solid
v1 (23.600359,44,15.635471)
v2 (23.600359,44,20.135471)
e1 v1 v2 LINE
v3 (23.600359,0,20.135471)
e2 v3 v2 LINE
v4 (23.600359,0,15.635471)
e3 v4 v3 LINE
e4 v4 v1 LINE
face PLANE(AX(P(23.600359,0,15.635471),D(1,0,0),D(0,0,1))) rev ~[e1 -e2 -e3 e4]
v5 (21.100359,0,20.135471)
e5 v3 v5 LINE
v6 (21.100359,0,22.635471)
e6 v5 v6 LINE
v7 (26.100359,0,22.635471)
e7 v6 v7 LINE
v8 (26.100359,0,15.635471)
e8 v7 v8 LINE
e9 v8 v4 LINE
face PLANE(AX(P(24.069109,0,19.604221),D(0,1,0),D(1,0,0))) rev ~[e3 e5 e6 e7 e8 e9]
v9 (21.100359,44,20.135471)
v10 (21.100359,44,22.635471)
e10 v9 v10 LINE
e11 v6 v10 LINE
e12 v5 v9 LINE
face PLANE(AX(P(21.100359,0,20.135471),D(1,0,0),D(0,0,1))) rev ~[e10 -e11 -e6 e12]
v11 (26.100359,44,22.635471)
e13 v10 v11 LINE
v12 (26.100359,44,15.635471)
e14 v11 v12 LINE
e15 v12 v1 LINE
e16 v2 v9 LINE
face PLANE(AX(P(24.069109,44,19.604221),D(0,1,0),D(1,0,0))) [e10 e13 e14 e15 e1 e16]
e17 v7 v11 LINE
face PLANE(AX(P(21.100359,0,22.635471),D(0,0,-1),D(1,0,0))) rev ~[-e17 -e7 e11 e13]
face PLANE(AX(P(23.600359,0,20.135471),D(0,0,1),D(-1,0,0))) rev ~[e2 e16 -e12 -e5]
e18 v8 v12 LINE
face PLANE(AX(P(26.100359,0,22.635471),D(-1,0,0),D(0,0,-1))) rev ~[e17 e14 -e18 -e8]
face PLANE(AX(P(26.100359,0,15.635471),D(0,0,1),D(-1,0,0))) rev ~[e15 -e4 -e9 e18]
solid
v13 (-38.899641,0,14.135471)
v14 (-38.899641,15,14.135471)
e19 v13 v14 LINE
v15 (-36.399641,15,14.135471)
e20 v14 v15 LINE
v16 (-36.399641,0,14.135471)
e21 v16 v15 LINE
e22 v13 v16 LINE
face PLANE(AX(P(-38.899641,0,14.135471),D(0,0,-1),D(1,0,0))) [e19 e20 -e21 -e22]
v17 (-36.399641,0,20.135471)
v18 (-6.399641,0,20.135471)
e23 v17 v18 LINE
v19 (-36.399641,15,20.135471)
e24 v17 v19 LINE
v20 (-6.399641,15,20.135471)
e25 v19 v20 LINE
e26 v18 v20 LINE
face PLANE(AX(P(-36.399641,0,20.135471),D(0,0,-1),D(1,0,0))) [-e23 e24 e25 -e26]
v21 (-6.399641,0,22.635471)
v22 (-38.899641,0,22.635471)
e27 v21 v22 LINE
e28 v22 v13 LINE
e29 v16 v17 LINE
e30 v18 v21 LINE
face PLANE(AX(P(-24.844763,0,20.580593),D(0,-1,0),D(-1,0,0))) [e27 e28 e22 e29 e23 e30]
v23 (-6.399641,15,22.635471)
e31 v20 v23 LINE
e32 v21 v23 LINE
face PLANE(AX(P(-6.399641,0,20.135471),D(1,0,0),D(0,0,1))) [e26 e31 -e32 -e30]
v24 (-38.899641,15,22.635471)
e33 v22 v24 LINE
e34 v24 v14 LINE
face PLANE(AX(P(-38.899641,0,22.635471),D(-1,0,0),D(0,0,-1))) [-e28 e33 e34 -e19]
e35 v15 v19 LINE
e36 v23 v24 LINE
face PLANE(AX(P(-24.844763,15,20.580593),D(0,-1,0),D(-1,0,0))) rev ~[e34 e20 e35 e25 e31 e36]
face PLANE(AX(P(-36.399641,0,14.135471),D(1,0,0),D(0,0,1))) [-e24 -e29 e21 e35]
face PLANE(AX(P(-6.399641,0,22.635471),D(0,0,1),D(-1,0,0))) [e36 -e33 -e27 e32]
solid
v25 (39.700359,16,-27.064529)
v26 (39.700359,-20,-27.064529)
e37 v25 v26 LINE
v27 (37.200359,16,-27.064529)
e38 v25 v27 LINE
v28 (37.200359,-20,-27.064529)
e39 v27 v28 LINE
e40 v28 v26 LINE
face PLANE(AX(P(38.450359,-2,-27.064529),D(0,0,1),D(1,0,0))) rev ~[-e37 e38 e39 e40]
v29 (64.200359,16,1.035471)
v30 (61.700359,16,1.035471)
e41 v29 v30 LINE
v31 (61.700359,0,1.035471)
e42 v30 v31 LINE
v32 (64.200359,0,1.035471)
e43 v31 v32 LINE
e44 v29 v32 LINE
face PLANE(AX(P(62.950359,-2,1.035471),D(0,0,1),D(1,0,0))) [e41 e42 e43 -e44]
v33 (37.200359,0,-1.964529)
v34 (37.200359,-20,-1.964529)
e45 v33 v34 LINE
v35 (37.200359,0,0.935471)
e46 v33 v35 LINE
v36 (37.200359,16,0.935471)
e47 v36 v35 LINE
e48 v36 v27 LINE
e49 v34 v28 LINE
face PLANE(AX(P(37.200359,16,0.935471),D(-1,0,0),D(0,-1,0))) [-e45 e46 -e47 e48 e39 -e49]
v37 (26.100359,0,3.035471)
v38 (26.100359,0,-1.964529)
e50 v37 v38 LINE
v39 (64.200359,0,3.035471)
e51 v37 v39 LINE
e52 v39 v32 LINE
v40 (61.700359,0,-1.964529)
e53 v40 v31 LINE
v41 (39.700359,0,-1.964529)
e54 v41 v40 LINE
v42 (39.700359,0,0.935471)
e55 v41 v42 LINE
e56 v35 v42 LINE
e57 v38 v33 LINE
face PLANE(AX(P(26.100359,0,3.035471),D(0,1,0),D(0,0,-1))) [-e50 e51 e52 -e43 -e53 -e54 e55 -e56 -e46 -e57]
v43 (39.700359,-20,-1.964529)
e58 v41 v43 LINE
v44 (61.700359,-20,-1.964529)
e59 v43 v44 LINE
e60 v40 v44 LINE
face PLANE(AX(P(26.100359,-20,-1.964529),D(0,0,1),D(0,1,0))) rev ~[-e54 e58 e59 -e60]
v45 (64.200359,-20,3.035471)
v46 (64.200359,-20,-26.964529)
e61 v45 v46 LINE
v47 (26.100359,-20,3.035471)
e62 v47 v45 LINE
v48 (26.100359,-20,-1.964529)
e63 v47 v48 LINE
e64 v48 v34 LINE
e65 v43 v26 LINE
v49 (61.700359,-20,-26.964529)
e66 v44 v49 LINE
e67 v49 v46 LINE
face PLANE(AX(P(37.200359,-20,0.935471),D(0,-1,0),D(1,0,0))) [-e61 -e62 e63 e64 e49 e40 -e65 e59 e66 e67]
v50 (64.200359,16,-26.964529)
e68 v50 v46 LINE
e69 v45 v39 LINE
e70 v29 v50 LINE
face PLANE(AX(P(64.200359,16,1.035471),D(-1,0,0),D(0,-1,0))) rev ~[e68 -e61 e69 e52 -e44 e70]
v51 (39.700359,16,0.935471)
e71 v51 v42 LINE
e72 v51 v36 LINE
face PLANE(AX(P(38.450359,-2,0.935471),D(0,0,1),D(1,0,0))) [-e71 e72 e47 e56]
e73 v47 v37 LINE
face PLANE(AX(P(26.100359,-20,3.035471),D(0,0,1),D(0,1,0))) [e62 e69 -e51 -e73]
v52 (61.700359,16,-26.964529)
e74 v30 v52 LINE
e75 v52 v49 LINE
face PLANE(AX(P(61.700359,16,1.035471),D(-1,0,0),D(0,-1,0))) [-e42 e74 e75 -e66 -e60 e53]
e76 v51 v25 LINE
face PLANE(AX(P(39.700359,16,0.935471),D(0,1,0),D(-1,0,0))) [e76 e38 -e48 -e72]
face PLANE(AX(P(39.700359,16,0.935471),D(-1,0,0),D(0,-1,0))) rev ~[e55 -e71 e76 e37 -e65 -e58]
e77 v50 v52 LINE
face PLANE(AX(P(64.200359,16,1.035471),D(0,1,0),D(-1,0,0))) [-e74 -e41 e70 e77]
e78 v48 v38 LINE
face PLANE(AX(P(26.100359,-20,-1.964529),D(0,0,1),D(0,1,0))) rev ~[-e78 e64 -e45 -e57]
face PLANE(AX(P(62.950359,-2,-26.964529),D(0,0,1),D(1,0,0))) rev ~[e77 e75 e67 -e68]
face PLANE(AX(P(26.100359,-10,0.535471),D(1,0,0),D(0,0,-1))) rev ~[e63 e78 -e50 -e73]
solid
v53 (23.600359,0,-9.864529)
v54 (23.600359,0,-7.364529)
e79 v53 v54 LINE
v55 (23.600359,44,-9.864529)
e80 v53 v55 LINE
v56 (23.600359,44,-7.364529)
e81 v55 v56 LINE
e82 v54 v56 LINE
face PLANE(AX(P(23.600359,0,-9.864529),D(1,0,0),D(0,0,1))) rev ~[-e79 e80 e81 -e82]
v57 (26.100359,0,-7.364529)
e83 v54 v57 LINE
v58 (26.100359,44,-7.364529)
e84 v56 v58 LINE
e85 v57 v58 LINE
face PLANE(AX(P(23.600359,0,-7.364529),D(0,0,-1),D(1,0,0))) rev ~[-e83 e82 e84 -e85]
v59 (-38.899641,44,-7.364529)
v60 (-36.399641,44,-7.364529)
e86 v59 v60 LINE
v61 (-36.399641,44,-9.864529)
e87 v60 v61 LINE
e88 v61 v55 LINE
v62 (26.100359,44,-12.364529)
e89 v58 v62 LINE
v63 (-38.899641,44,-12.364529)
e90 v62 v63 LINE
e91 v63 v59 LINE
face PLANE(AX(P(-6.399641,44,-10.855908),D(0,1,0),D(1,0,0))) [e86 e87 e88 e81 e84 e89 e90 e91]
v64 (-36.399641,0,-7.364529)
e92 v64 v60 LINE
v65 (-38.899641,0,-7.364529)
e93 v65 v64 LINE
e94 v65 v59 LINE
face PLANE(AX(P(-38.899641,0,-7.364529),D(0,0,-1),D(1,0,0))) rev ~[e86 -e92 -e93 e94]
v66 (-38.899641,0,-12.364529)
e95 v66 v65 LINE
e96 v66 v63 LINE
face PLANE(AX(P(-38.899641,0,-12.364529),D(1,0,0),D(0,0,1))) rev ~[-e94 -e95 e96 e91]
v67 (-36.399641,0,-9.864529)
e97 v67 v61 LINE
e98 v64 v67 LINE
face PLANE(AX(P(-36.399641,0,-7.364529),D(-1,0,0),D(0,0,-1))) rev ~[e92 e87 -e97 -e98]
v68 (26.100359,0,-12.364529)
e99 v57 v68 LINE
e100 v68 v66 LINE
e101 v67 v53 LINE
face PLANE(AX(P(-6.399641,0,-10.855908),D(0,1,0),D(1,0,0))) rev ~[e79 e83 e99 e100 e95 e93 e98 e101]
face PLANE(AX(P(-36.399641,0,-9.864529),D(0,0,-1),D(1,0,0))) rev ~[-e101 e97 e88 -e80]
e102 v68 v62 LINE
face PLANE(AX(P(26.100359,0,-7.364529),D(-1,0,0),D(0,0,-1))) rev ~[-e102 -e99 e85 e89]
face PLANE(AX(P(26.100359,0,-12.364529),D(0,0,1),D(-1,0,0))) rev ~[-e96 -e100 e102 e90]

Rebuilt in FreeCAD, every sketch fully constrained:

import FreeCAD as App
import Part
import Sketcher

V = App.Vector


def add_polygon(sketch, points):
    """Adds a closed chain of lines whose ends are joined by coincident constraints."""
    first, n = sketch.GeometryCount, len(points)
    for a, b in zip(points, points[1:] + points[:1]):
        sketch.addGeometry(Part.LineSegment(App.Vector(*a, 0), App.Vector(*b, 0)), False)
    for i in range(n):
        sketch.addConstraint(Sketcher.Constraint("Coincident", first + i, 2, first + (i + 1) % n, 1))

doc = App.newDocument("Part")
params = doc.addObject("Spreadsheet::Sheet", "Params")
for row, (alias, value) in enumerate([
    ("sketch1_width", "60 mm"),
    ("sketch1_width2", "65 mm"),
    ("sketch1_height", "5 mm"),
    ("pad1_length", "44 mm"),
    ("sketch2_width", "5 mm"),
    ("sketch2_height", "7 mm"),
    ("pad2_length", "44 mm"),
    ("sketch3_width", "30 mm"),
    ("sketch3_height", "6 mm"),
    ("sketch3_width2", "2.5 mm"),
    ("pad3_length", "15 mm"),
    ("sketch4_width", "20 mm"),
    ("sketch4_height", "5 mm"),
    ("pad4_length", "38.1 mm"),
    ("sketch5_height", "36 mm"),
    ("sketch5_width", "2.5 mm"),
    ("pad5_length", "25 mm"),
    ("pad5_length2", "3 mm"),
    ("sketch6_height", "36 mm"),
    ("sketch6_width", "2.5 mm"),
    ("pad6_length", "25.1 mm"),
    ("pad6_length2", "2.9 mm"),
], start=1):
    params.set(f"A{row}", alias)
    params.set(f"B{row}", "=" + value)
    params.setAlias(f"B{row}", alias)

body = doc.addObject("PartDesign::Body", "Body")

# Sketch on XZ plane
sketch1 = body.newObject("Sketcher::SketchObject", "Sketch")
sketch1.AttachmentSupport = (doc.getObject("XZ_Plane"), [""])
sketch1.MapMode = "FlatFace"
add_polygon(sketch1, [(-38.9, -12.4), (-38.9, -7.4), (-36.4, -7.4), (-36.4, -9.9), (23.6, -9.9), (23.6, -7.4), (26.1, -7.4), (26.1, -12.4)])  # lines 0-7
sketch1.addConstraint([
    Sketcher.Constraint("Vertical", 0),
    Sketcher.Constraint("Horizontal", 1),
    Sketcher.Constraint("Vertical", 2),
    Sketcher.Constraint("Horizontal", 3),
    Sketcher.Constraint("Vertical", 4),
    Sketcher.Constraint("Horizontal", 5),
    Sketcher.Constraint("Vertical", 6),
    Sketcher.Constraint("Horizontal", 7),
    Sketcher.Constraint("Horizontal", 1, 2, 4, 2),
    Sketcher.Constraint("Equal", 1, 5),
    Sketcher.Constraint("Equal", 5, 2),
    Sketcher.Constraint("DistanceX", 3, 1, 3, 2, 60.0),
    Sketcher.Constraint("DistanceX", 7, 2, 7, 1, 65.0),
    Sketcher.Constraint("DistanceY", 0, 1, 0, 2, 5.0),
    Sketcher.Constraint("DistanceX", 0, 2, -1, 1, 38.899641),
    Sketcher.Constraint("DistanceY", 0, 2, -1, 1, 7.364529),
])
sketch1.setExpression("Constraints[19]", "Params.sketch1_width")
sketch1.setExpression("Constraints[20]", "Params.sketch1_width2")
sketch1.setExpression("Constraints[21]", "Params.sketch1_height")
pad1 = body.newObject("PartDesign::Pad", "Pad")
pad1.Profile = sketch1
pad1.setExpression("Length", "Params.pad1_length")
pad1.Reversed = True
body2 = doc.addObject("PartDesign::Body", "Body001")

# Sketch on XZ plane
sketch2 = body2.newObject("Sketcher::SketchObject", "Sketch001")
sketch2.AttachmentSupport = (doc.getObject("XZ_Plane001"), [""])
sketch2.MapMode = "FlatFace"
add_polygon(sketch2, [(26.1, 22.6), (26.1, 15.6), (23.6, 15.6), (23.6, 20.1), (21.1, 20.1), (21.1, 22.6)])  # lines 0-5
sketch2.addConstraint([
    Sketcher.Constraint("Vertical", 0),
    Sketcher.Constraint("Horizontal", 1),
    Sketcher.Constraint("Vertical", 2),
    Sketcher.Constraint("Horizontal", 3),
    Sketcher.Constraint("Vertical", 4),
    Sketcher.Constraint("Horizontal", 5),
    Sketcher.Constraint("Equal", 1, 3),
    Sketcher.Constraint("Equal", 3, 4),
    Sketcher.Constraint("DistanceX", 5, 1, 5, 2, 5.0),
    Sketcher.Constraint("DistanceY", 0, 2, 0, 1, 7.0),
    Sketcher.Constraint("DistanceX", -1, 1, 0, 2, 26.100359),
    Sketcher.Constraint("DistanceY", -1, 1, 0, 2, 15.635471),
])
sketch2.setExpression("Constraints[14]", "Params.sketch2_width")
sketch2.setExpression("Constraints[15]", "Params.sketch2_height")
pad2 = body2.newObject("PartDesign::Pad", "Pad001")
pad2.Profile = sketch2
pad2.setExpression("Length", "Params.pad2_length")
pad2.Reversed = True
body3 = doc.addObject("PartDesign::Body", "Body002")

# Sketch on XZ plane
sketch3 = body3.newObject("Sketcher::SketchObject", "Sketch002")
sketch3.AttachmentSupport = (doc.getObject("XZ_Plane002"), [""])
sketch3.MapMode = "FlatFace"
add_polygon(sketch3, [(-36.4, 14.1), (-38.9, 14.1), (-38.9, 22.6), (-6.4, 22.6), (-6.4, 20.1), (-36.4, 20.1)])  # lines 0-5
sketch3.addConstraint([
    Sketcher.Constraint("Horizontal", 0),
    Sketcher.Constraint("Vertical", 1),
    Sketcher.Constraint("Horizontal", 2),
    Sketcher.Constraint("Vertical", 3),
    Sketcher.Constraint("Horizontal", 4),
    Sketcher.Constraint("Vertical", 5),
    Sketcher.Constraint("Equal", 0, 3),
    Sketcher.Constraint("DistanceX", 4, 2, 4, 1, 30.0),
    Sketcher.Constraint("DistanceY", 5, 2, 5, 1, 6.0),
    Sketcher.Constraint("DistanceX", 0, 2, 0, 1, 2.5),
    Sketcher.Constraint("DistanceX", 0, 2, -1, 1, 38.899641),
    Sketcher.Constraint("DistanceY", -1, 1, 0, 2, 14.135471),
])
sketch3.setExpression("Constraints[13]", "Params.sketch3_width")
sketch3.setExpression("Constraints[14]", "Params.sketch3_height")
sketch3.setExpression("Constraints[15]", "Params.sketch3_width2")
pad3 = body3.newObject("PartDesign::Pad", "Pad002")
pad3.Profile = sketch3
pad3.setExpression("Length", "Params.pad3_length")
pad3.Reversed = True
body4 = doc.addObject("PartDesign::Body", "Body003")

# Sketch on YZ plane
sketch4 = body4.newObject("Sketcher::SketchObject", "Sketch003")
sketch4.AttachmentSupport = (doc.getObject("YZ_Plane003"), [""])
sketch4.MapMode = "FlatFace"
sketch4.AttachmentOffset = App.Placement(V(0, 0, 26.100359), App.Rotation())
add_polygon(sketch4, [(0, 3), (-20, 3), (-20, -2), (0, -2)])  # lines 0-3
sketch4.addConstraint([
    Sketcher.Constraint("Horizontal", 0),
    Sketcher.Constraint("Vertical", 1),
    Sketcher.Constraint("Horizontal", 2),
    Sketcher.Constraint("Vertical", 3),
    Sketcher.Constraint("PointOnObject", 2, 2, -2),
    Sketcher.Constraint("DistanceX", 0, 2, 0, 1, 20.0),
    Sketcher.Constraint("DistanceY", 1, 2, 1, 1, 5.0),
    Sketcher.Constraint("DistanceY", -1, 1, 0, 2, 3.035471),
])
sketch4.setExpression("Constraints[9]", "Params.sketch4_width")
sketch4.setExpression("Constraints[10]", "Params.sketch4_height")
pad4 = body4.newObject("PartDesign::Pad", "Pad003")
pad4.Profile = sketch4
pad4.setExpression("Length", "Params.pad4_length")

# Sketch on XY plane
sketch5 = body4.newObject("Sketcher::SketchObject", "Sketch004")
sketch5.AttachmentSupport = (doc.getObject("XY_Plane003"), [""])
sketch5.MapMode = "FlatFace"
sketch5.AttachmentOffset = App.Placement(V(0, 0, -1.964529), App.Rotation())
add_polygon(sketch5, [(64.2, 16), (64.2, -20), (61.7, -20), (61.7, 16)])  # lines 0-3
sketch5.addConstraint([
    Sketcher.Constraint("Vertical", 0),
    Sketcher.Constraint("Horizontal", 1),
    Sketcher.Constraint("Vertical", 2),
    Sketcher.Constraint("Horizontal", 3),
    Sketcher.Constraint("DistanceY", 0, 2, 0, 1, 36.0),
    Sketcher.Constraint("DistanceX", 1, 2, 1, 1, 2.5),
    Sketcher.Constraint("DistanceY", 0, 2, -1, 1, 20.0),
    Sketcher.Constraint("DistanceX", -1, 1, 0, 2, 64.200359),
])
sketch5.setExpression("Constraints[8]", "Params.sketch5_height")
sketch5.setExpression("Constraints[9]", "Params.sketch5_width")
pad5 = body4.newObject("PartDesign::Pad", "Pad004")
pad5.Profile = sketch5
pad5.Type = "TwoLengths"
pad5.setExpression("Length", "Params.pad5_length")
pad5.setExpression("Length2", "Params.pad5_length2")
pad5.Reversed = True

# Sketch on XY plane
sketch6 = body4.newObject("Sketcher::SketchObject", "Sketch005")
sketch6.AttachmentSupport = (doc.getObject("XY_Plane003"), [""])
sketch6.MapMode = "FlatFace"
sketch6.AttachmentOffset = App.Placement(V(0, 0, -1.964529), App.Rotation())
add_polygon(sketch6, [(39.7, 16), (39.7, -20), (37.2, -20), (37.2, 16)])  # lines 0-3
sketch6.addConstraint([
    Sketcher.Constraint("Vertical", 0),
    Sketcher.Constraint("Horizontal", 1),
    Sketcher.Constraint("Vertical", 2),
    Sketcher.Constraint("Horizontal", 3),
    Sketcher.Constraint("DistanceY", 0, 2, 0, 1, 36.0),
    Sketcher.Constraint("DistanceX", 1, 2, 1, 1, 2.5),
    Sketcher.Constraint("DistanceY", 0, 2, -1, 1, 20.0),
    Sketcher.Constraint("DistanceX", -1, 1, 0, 2, 39.700359),
])
sketch6.setExpression("Constraints[8]", "Params.sketch6_height")
sketch6.setExpression("Constraints[9]", "Params.sketch6_width")
pad6 = body4.newObject("PartDesign::Pad", "Pad005")
pad6.Profile = sketch6
pad6.Type = "TwoLengths"
pad6.setExpression("Length", "Params.pad6_length")
pad6.setExpression("Length2", "Params.pad6_length2")
pad6.Reversed = True

doc.recompute()
